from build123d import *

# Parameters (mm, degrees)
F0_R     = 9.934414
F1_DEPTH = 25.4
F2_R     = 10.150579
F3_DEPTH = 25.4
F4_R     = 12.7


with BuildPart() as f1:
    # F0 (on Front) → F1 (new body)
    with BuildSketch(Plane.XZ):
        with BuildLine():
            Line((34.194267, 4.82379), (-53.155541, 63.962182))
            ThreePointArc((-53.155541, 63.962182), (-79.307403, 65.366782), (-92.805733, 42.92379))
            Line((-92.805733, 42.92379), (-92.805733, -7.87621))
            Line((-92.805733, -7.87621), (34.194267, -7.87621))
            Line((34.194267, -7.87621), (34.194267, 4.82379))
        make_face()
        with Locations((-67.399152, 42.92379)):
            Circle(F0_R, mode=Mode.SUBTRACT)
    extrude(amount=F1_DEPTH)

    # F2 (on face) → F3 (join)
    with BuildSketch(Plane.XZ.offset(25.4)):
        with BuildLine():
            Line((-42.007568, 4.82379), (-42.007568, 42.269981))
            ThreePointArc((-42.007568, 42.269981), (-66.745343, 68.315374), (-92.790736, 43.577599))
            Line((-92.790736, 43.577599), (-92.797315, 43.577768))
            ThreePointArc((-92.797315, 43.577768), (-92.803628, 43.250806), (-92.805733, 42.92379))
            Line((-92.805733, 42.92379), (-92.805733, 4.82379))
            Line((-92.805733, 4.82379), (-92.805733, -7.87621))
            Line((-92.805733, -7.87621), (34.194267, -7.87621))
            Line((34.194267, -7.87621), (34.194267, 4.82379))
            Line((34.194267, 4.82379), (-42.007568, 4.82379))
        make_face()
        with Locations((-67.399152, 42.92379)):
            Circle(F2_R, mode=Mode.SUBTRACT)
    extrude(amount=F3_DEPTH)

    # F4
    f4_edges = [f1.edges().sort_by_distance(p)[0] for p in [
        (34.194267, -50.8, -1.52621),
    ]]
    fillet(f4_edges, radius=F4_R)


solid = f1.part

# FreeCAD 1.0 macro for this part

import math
import FreeCAD as App
import Part
import Sketcher
from FreeCAD import Vector
Q = App.Units.Quantity


def edges_at(feature, points):
    """Names of the edges that pass closest to the given points."""
    edges = feature.Shape.Edges
    near = lambda p: min(range(len(edges)), key=lambda i: edges[i].distToShape(Part.Vertex(*p))[0])
    return sorted({f"Edge{near(p) + 1}" for p in points})

doc = App.newDocument("Part")
body = doc.addObject("PartDesign::Body", "Body")

sketch1 = doc.addObject("Sketcher::SketchObject", "Sketch")
body.addObject(sketch1)
sketch1.AttachmentSupport = (doc.XZ_Plane, [""])
sketch1.MapMode = "FlatFace"
sketch1.addGeometry(Part.LineSegment(Vector(34, 5, 0), Vector(-53, 64, 0)), False)
sketch1.addGeometry(Part.ArcOfCircle(Part.Circle(Vector(-67, 43, 0), Vector(0, 0, 1), 25), math.radians(56), math.radians(180)), False)
sketch1.addGeometry(Part.LineSegment(Vector(-93, 43, 0), Vector(-93, -8, 0)), False)
sketch1.addGeometry(Part.LineSegment(Vector(-93, -8, 0), Vector(34, -8, 0)), False)
sketch1.addGeometry(Part.LineSegment(Vector(34, -8, 0), Vector(34, 5, 0)), False)
sketch1.addGeometry(Part.Circle(Vector(-67, 43, 0), Vector(0, 0, 1), 10), False)
sketch1.addConstraint(Sketcher.Constraint("Tangent", 0, 2, 1, 1))
sketch1.addConstraint(Sketcher.Constraint("Tangent", 1, 2, 2, 1))
sketch1.addConstraint(Sketcher.Constraint("Coincident", 2, 2, 3, 1))
sketch1.addConstraint(Sketcher.Constraint("Coincident", 3, 2, 4, 1))
sketch1.addConstraint(Sketcher.Constraint("Coincident", 4, 2, 0, 1))
sketch1.addConstraint(Sketcher.Constraint("Vertical", 2))
sketch1.addConstraint(Sketcher.Constraint("Horizontal", 3))
sketch1.addConstraint(Sketcher.Constraint("Vertical", 4))
sketch1.addConstraint(Sketcher.Constraint("Coincident", 5, 3, 1, 3))
sketch1.addConstraint(Sketcher.Constraint("DistanceX", 3, 1, 3, 2, Q("5 in")))
sketch1.addConstraint(Sketcher.Constraint("DistanceY", 2, 2, 2, 1, Q("2 in")))
sketch1.addConstraint(Sketcher.Constraint("DistanceY", 4, 1, 4, 2, Q("0.5 in")))
sketch1.addConstraint(Sketcher.Constraint("Distance", 0, Q("4.153 in")))
sketch1.addConstraint(Sketcher.Constraint("Diameter", 5, Q("19.868828 mm")))
sketch1.addConstraint(Sketcher.Constraint("DistanceX", 1, 3, -1, 1, Q("67.399151 mm")))
sketch1.addConstraint(Sketcher.Constraint("DistanceY", -1, 1, 1, 3, Q("42.923789 mm")))
pad1 = doc.addObject("PartDesign::Pad", "Pad")
body.addObject(pad1)
pad1.Profile = sketch1
pad1.Length = Q("1 in")

sketch2 = doc.addObject("Sketcher::SketchObject", "Sketch001")
body.addObject(sketch2)
sketch2.AttachmentSupport = (doc.XZ_Plane, [""])
sketch2.MapMode = "FlatFace"
sketch2.AttachmentOffset = App.Placement(Vector(0, 0, 1 * 25.4), App.Rotation())
sketch2.addGeometry(Part.LineSegment(Vector(-42.008, 4.824, 0), Vector(-42.008, 42.27, 0)), False)
sketch2.addGeometry(Part.ArcOfCircle(Part.Circle(Vector(-67.399, 42.924, 0), Vector(0, 0, 1), 25.4), math.radians(-1), math.radians(179)), False)
sketch2.addGeometry(Part.LineSegment(Vector(-92.791, 43.578, 0), Vector(-92.797, 43.578, 0)), False)
sketch2.addGeometry(Part.ArcOfCircle(Part.Circle(Vector(-67.393, 42.924, 0), Vector(0, 0, 1), 25.412), math.radians(178.53), math.radians(180)), False)
sketch2.addGeometry(Part.LineSegment(Vector(-92.806, 42.924, 0), Vector(-92.806, -7.876, 0)), False)
sketch2.addGeometry(Part.LineSegment(Vector(-92.806, -7.876, 0), Vector(34.194, -7.876, 0)), False)
sketch2.addGeometry(Part.LineSegment(Vector(34.194, -7.876, 0), Vector(34.194, 4.824, 0)), False)
sketch2.addGeometry(Part.LineSegment(Vector(34.194, 4.824, 0), Vector(-42.008, 4.824, 0)), False)
sketch2.addGeometry(Part.Circle(Vector(-67.399, 42.924, 0), Vector(0, 0, 1), 10.151), False)
sketch2.addConstraint(Sketcher.Constraint("Coincident", 0, 2, 1, 1))
sketch2.addConstraint(Sketcher.Constraint("Coincident", 1, 2, 2, 1))
sketch2.addConstraint(Sketcher.Constraint("Coincident", 2, 2, 3, 1))
sketch2.addConstraint(Sketcher.Constraint("Coincident", 3, 2, 4, 1))
sketch2.addConstraint(Sketcher.Constraint("Coincident", 4, 2, 5, 1))
sketch2.addConstraint(Sketcher.Constraint("Coincident", 5, 2, 6, 1))
sketch2.addConstraint(Sketcher.Constraint("Coincident", 6, 2, 7, 1))
sketch2.addConstraint(Sketcher.Constraint("Coincident", 7, 2, 0, 1))
sketch2.addConstraint(Sketcher.Constraint("Vertical", 0))
sketch2.addConstraint(Sketcher.Constraint("Vertical", 4))
sketch2.addConstraint(Sketcher.Constraint("Horizontal", 5))
sketch2.addConstraint(Sketcher.Constraint("Vertical", 6))
sketch2.addConstraint(Sketcher.Constraint("Horizontal", 7))
sketch2.addConstraint(Sketcher.Constraint("Coincident", 8, 3, 1, 3))
sketch2.addConstraint(Sketcher.Constraint("Horizontal", 8, 3, 3, 2))
sketch2.addConstraint(Sketcher.Constraint("Radius", 1, Q("1 in")))
sketch2.addConstraint(Sketcher.Constraint("DistanceX", 5, 1, 5, 2, Q("5 in")))
sketch2.addConstraint(Sketcher.Constraint("DistanceY", 4, 2, 4, 1, Q("2 in")))
sketch2.addConstraint(Sketcher.Constraint("DistanceY", 6, 1, 6, 2, Q("0.5 in")))
sketch2.addConstraint(Sketcher.Constraint("Diameter", 8, Q("20.301158 mm")))
sketch2.addConstraint(Sketcher.Constraint("Radius", 3, Q("25.412344 mm")))
sketch2.addConstraint(Sketcher.Constraint("DistanceY", 0, 1, 0, 2, Q("37.446191 mm")))
sketch2.addConstraint(Sketcher.Constraint("DistanceY", -1, 1, 1, 2, Q("43.577599 mm")))
sketch2.addConstraint(Sketcher.Constraint("Distance", 2, Q("0.006581 mm")))
sketch2.addConstraint(Sketcher.Constraint("DistanceX", 7, 2, 7, 1, Q("76.201835 mm")))
sketch2.addConstraint(Sketcher.Constraint("DistanceX", 1, 3, -1, 1, Q("67.399152 mm")))
sketch2.addConstraint(Sketcher.Constraint("DistanceY", -1, 1, 1, 3, Q("42.92379 mm")))
sketch2.addConstraint(Sketcher.Constraint("DistanceX", 2, 2, 1, 2, Q("0.006579 mm")))
pad2 = doc.addObject("PartDesign::Pad", "Pad001")
body.addObject(pad2)
pad2.Profile = sketch2
pad2.Length = Q("1 in")
doc.recompute()

fillet = doc.addObject("PartDesign::Fillet", "Fillet")
body.addObject(fillet)
fillet.Base = (pad2, edges_at(pad2, [(34.194, -50.8, -1.526)]))
fillet.Radius = Q("0.5 in")

doc.recompute()
